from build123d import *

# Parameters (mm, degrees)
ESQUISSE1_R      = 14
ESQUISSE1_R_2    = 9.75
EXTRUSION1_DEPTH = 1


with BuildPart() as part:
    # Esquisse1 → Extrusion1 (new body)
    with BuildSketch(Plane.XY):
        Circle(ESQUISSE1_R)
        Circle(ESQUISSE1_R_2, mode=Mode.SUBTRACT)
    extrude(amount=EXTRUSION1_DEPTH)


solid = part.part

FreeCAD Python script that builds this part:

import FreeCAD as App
import Part
import Sketcher

V = App.Vector
Q = App.Units.Quantity

doc = App.newDocument("Part")
body = doc.addObject("PartDesign::Body", "Body")

sketch1 = body.newObject("Sketcher::SketchObject", "Sketch")
sketch1.AttachmentSupport = (doc.getObject("XY_Plane"), [""])
sketch1.MapMode = "FlatFace"
sketch1.addGeometry(Part.Circle(V(0, 0, 0), V(0, 0, 1), 14), False)
sketch1.addGeometry(Part.Circle(V(0, 0, 0), V(0, 0, 1), 10), False)
sketch1.addConstraint(Sketcher.Constraint("Coincident", 0, 3, -1, 1))
sketch1.addConstraint(Sketcher.Constraint("Coincident", 1, 3, -1, 1))
sketch1.addConstraint(Sketcher.Constraint("Diameter", 0, Q("28 mm")))
sketch1.addConstraint(Sketcher.Constraint("Diameter", 1, Q("19.5 mm")))
pad1 = body.newObject("PartDesign::Pad", "Pad")
pad1.Profile = sketch1
pad1.Length = 1

doc.recompute()
